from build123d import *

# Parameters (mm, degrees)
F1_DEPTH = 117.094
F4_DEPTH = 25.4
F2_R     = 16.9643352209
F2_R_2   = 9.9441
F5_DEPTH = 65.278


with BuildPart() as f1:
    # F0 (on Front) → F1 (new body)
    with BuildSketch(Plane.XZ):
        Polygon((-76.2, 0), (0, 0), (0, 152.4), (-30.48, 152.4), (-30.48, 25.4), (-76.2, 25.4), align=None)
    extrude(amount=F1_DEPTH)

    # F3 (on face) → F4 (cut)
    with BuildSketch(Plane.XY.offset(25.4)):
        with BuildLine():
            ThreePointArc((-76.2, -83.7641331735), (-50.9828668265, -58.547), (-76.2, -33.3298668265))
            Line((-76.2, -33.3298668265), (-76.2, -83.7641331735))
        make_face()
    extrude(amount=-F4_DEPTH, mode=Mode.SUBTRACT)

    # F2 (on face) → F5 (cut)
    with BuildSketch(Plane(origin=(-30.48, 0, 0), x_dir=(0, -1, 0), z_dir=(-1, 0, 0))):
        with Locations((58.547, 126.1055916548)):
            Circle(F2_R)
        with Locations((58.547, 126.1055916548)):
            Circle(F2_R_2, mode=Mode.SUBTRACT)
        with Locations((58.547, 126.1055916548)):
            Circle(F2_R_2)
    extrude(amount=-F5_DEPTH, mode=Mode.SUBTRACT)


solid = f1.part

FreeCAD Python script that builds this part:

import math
import FreeCAD as App
import Part
import Sketcher
Q = App.Units.Quantity

doc = App.newDocument("Part")
body = doc.addObject("PartDesign::Body", "Body")

# Sketch on XZ plane
sketch1 = body.newObject("Sketcher::SketchObject", "Sketch")
sketch1.AttachmentSupport = (doc.getObject("XZ_Plane"), [""])
sketch1.MapMode = "FlatFace"
sketch1.addGeometry([
    Part.LineSegment(App.Vector(-76, 0, 0), App.Vector(0, 0, 0)),  # 0
    Part.LineSegment(App.Vector(0, 0, 0), App.Vector(0, 152, 0)),  # 1
    Part.LineSegment(App.Vector(0, 152, 0), App.Vector(-30, 152, 0)),  # 2
    Part.LineSegment(App.Vector(-30, 152, 0), App.Vector(-30, 25, 0)),  # 3
    Part.LineSegment(App.Vector(-30, 25, 0), App.Vector(-76, 25, 0)),  # 4
    Part.LineSegment(App.Vector(-76, 25, 0), App.Vector(-76, 0, 0)),  # 5
], False)
sketch1.addConstraint([
    Sketcher.Constraint("Coincident", 0, 2, 1, 1),
    Sketcher.Constraint("Coincident", 1, 2, 2, 1),
    Sketcher.Constraint("Coincident", 2, 2, 3, 1),
    Sketcher.Constraint("Coincident", 3, 2, 4, 1),
    Sketcher.Constraint("Coincident", 4, 2, 5, 1),
    Sketcher.Constraint("Coincident", 5, 2, 0, 1),
    Sketcher.Constraint("Horizontal", 0),
    Sketcher.Constraint("Vertical", 1),
    Sketcher.Constraint("Horizontal", 2),
    Sketcher.Constraint("Vertical", 3),
    Sketcher.Constraint("Horizontal", 4),
    Sketcher.Constraint("Vertical", 5),
    Sketcher.Constraint("Coincident", 0, 2, -1, 1),
    Sketcher.Constraint("DistanceX", 0, 1, 0, 2, Q("3 in")),
    Sketcher.Constraint("DistanceY", 1, 1, 1, 2, Q("6 in")),
    Sketcher.Constraint("DistanceY", 3, 2, 3, 1, Q("5 in")),
    Sketcher.Constraint("DistanceX", 2, 2, 2, 1, Q("1.2 in")),
])
pad1 = body.newObject("PartDesign::Pad", "Pad")
pad1.Profile = sketch1
pad1.Length = Q("4.61 in")

# Sketch on XY plane
sketch2 = body.newObject("Sketcher::SketchObject", "Sketch001")
sketch2.AttachmentSupport = (doc.getObject("XY_Plane"), [""])
sketch2.MapMode = "FlatFace"
sketch2.AttachmentOffset = App.Placement(App.Vector(0, 0, 1 * 25.4), App.Rotation())
sketch2.addGeometry([
    Part.ArcOfCircle(Part.Circle(App.Vector(-76, -59, 0), App.Vector(0, 0, 1), 25), math.radians(-90), math.radians(90)),
    Part.LineSegment(App.Vector(-76, -33, 0), App.Vector(-76, -84, 0)),
], False)
sketch2.addConstraint([
    Sketcher.Constraint("Coincident", 0, 1, 1, 2),
    Sketcher.Constraint("Coincident", 1, 1, 0, 2),
    Sketcher.Constraint("Vertical", 1),
    Sketcher.Constraint("DistanceX", 0, 3, -1, 1, Q("3 in")),
    Sketcher.Constraint("DistanceX", 0, 1, -1, 1, Q("3 in")),
    Sketcher.Constraint("DistanceY", 0, 3, -1, 1, Q("2.305 in")),
    Sketcher.Constraint("Radius", 0, 25.217133),
])
pocket1 = body.newObject("PartDesign::Pocket", "Pocket")
pocket1.Profile = sketch2
pocket1.Length = Q("1 in")

# Sketch on YZ plane
sketch3 = body.newObject("Sketcher::SketchObject", "Sketch002")
sketch3.AttachmentSupport = (doc.getObject("YZ_Plane"), [""])
sketch3.MapMode = "FlatFace"
sketch3.AttachmentOffset = App.Placement(App.Vector(0, 0, -1.2 * 25.4), App.Rotation())
sketch3.addGeometry(Part.Circle(App.Vector(-59, 126, 0), App.Vector(0, 0, 1), 17), False)
sketch3.addConstraint([
    Sketcher.Constraint("Diameter", 0, 33.92867),
    Sketcher.Constraint("DistanceX", 0, 3, -1, 1, Q("2.305 in")),
    Sketcher.Constraint("DistanceY", -1, 1, 0, 3, 126.105592),
])
pocket2 = body.newObject("PartDesign::Pocket", "Pocket001")
pocket2.Profile = sketch3
pocket2.Length = Q("2.57 in")
pocket2.Reversed = True

doc.recompute()
